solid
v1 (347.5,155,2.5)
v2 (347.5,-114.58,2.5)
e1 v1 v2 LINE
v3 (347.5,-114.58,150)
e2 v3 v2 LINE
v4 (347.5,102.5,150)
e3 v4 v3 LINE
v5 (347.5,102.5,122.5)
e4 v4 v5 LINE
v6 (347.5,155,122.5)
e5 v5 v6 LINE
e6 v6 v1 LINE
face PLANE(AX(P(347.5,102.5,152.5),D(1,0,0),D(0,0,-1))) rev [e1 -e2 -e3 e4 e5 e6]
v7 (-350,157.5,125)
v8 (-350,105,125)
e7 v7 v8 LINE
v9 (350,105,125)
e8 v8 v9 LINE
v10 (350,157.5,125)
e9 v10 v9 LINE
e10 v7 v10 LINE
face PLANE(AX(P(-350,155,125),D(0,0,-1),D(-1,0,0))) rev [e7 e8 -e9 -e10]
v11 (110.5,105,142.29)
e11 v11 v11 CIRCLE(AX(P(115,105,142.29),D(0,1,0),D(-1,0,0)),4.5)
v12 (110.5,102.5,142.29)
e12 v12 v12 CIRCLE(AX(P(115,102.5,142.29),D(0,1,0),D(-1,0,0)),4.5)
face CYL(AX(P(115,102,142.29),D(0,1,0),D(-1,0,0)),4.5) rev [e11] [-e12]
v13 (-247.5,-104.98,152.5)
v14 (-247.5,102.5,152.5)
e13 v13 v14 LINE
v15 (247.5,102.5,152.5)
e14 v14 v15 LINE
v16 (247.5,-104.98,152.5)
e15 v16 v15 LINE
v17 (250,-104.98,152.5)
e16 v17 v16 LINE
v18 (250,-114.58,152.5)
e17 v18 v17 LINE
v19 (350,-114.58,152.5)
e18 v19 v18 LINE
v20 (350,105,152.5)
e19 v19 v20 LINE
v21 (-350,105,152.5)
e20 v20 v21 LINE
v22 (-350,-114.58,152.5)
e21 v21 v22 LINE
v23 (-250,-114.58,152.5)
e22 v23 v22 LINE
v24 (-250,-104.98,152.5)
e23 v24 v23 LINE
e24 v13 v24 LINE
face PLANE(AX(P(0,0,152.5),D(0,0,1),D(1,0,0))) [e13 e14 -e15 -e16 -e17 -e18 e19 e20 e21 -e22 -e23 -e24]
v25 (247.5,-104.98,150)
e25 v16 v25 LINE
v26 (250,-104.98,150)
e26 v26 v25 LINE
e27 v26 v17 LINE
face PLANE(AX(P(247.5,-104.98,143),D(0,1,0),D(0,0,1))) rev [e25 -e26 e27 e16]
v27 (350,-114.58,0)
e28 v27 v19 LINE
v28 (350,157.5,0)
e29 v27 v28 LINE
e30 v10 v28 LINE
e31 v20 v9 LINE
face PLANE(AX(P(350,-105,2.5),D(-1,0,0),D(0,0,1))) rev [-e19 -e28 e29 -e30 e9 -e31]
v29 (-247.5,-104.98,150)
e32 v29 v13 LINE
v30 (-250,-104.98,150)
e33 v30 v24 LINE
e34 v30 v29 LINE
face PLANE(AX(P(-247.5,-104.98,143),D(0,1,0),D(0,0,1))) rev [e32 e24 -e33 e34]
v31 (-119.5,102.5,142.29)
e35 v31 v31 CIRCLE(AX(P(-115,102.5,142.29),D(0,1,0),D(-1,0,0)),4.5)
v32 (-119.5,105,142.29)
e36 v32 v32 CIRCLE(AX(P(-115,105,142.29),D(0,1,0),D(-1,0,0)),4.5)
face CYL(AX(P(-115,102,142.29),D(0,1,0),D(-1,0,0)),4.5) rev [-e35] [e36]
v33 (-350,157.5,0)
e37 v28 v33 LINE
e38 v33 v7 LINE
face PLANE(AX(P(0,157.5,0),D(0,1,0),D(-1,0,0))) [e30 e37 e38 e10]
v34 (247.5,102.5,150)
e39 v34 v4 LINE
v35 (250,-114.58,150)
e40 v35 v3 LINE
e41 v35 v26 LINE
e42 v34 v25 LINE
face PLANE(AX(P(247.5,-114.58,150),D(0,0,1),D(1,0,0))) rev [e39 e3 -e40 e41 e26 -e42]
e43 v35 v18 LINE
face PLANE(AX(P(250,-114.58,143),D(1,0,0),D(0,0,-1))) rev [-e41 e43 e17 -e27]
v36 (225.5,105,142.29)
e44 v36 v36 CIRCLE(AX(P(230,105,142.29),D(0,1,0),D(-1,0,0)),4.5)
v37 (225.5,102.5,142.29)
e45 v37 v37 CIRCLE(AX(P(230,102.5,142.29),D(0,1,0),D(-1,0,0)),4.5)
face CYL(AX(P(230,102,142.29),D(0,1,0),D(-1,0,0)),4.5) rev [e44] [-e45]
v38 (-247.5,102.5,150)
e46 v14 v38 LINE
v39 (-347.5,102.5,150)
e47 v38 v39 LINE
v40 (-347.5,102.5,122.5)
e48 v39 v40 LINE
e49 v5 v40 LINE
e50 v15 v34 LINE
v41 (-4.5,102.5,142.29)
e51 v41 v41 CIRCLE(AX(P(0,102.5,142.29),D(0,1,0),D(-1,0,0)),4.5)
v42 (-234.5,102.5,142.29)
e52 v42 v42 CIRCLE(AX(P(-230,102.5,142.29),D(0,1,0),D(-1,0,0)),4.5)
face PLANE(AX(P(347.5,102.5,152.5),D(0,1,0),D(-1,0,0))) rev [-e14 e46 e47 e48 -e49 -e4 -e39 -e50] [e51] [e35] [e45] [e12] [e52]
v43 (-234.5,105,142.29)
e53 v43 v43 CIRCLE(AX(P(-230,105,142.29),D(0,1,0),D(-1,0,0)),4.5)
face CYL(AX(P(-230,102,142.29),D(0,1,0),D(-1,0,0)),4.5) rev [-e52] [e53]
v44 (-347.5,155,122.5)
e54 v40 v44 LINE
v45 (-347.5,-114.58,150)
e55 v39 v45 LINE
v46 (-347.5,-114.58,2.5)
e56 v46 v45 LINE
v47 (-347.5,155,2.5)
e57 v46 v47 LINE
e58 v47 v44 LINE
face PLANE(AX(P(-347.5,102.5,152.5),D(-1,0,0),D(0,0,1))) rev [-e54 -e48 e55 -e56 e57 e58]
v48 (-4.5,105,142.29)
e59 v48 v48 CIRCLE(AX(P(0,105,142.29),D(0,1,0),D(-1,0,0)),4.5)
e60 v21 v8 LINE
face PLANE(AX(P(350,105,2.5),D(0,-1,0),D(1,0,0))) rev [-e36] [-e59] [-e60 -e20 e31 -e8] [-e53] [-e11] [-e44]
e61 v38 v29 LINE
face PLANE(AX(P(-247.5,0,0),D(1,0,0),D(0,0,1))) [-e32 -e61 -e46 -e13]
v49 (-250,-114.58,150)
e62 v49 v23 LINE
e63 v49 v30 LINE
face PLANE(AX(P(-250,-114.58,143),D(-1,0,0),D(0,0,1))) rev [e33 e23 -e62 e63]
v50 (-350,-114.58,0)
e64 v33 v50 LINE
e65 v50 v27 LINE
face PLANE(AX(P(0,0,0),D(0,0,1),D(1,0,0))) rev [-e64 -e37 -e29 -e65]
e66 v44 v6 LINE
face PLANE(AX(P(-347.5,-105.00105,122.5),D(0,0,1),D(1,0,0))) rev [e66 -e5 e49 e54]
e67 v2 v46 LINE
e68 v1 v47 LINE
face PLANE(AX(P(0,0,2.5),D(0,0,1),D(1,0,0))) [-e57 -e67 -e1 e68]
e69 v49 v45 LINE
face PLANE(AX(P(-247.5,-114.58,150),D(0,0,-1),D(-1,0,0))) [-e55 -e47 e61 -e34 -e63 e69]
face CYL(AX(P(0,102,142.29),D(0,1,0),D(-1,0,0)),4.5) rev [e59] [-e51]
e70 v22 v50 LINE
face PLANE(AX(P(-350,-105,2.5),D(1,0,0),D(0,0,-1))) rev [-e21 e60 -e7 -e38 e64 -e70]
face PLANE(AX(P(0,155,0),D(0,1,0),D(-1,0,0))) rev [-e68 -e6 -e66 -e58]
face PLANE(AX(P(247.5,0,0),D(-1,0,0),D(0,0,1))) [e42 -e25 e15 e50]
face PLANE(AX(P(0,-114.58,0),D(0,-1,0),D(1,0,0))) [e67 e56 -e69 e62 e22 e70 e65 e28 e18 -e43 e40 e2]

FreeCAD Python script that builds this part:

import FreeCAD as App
import Part
import Sketcher
from FreeCAD import Vector


def add_polygon(sketch, points):
    """Adds a closed chain of lines whose ends are joined by coincident constraints."""
    first, n = sketch.GeometryCount, len(points)
    for a, b in zip(points, points[1:] + points[:1]):
        sketch.addGeometry(Part.LineSegment(App.Vector(*a, 0), App.Vector(*b, 0)), False)
    for i in range(n):
        sketch.addConstraint(Sketcher.Constraint("Coincident", first + i, 2, first + (i + 1) % n, 1))

doc = App.newDocument("Part")
body = doc.addObject("PartDesign::Body", "Body")

# Sketch on XY plane
sketch1 = body.newObject("Sketcher::SketchObject", "Sketch")
sketch1.AttachmentSupport = (doc.getObject("XY_Plane"), [""])
sketch1.MapMode = "FlatFace"
add_polygon(sketch1, [(-350, 105), (-350, -105), (350, -105), (350, 105)])  # lines 0-3
sketch1.addConstraint(Sketcher.Constraint("Vertical", 0))
sketch1.addConstraint(Sketcher.Constraint("Horizontal", 1))
sketch1.addConstraint(Sketcher.Constraint("Vertical", 2))
sketch1.addConstraint(Sketcher.Constraint("Horizontal", 3))
sketch1.addConstraint(Sketcher.Constraint("Symmetric", 0, 2, 2, 2, -1, 1))
sketch1.addConstraint(Sketcher.Constraint("DistanceX", 1, 1, 1, 2, 700.0))
sketch1.addConstraint(Sketcher.Constraint("DistanceY", 0, 2, 0, 1, 210.0))
pad1 = body.newObject("PartDesign::Pad", "Pad")
pad1.Profile = sketch1
pad1.Length = 2.5

# Sketch on XY plane
sketch2 = body.newObject("Sketcher::SketchObject", "Sketch001")
sketch2.AttachmentSupport = (doc.getObject("XY_Plane"), [""])
sketch2.MapMode = "FlatFace"
sketch2.AttachmentOffset = App.Placement(Vector(0, 0, 2.5), App.Rotation())
add_polygon(sketch2, [(-347.5, -105), (-347.5, 102.5), (347.5, 102.5), (347.5, -105), (350, -105), (350, 105), (-350, 105), (-350, -105)])  # lines 0-7
sketch2.addConstraint(Sketcher.Constraint("Vertical", 0))
sketch2.addConstraint(Sketcher.Constraint("Horizontal", 1))
sketch2.addConstraint(Sketcher.Constraint("Vertical", 2))
sketch2.addConstraint(Sketcher.Constraint("Horizontal", 3))
sketch2.addConstraint(Sketcher.Constraint("Vertical", 4))
sketch2.addConstraint(Sketcher.Constraint("Horizontal", 5))
sketch2.addConstraint(Sketcher.Constraint("Vertical", 6))
sketch2.addConstraint(Sketcher.Constraint("Horizontal", 7))
sketch2.addConstraint(Sketcher.Constraint("Symmetric", 3, 2, 5, 2, -1, 1))
sketch2.addConstraint(Sketcher.Constraint("Symmetric", 2, 2, 7, 2, -2))
sketch2.addConstraint(Sketcher.Constraint("DistanceX", 1, 1, 1, 2, 695.0))
sketch2.addConstraint(Sketcher.Constraint("DistanceX", 5, 2, 5, 1, 700.0))
sketch2.addConstraint(Sketcher.Constraint("DistanceY", 4, 1, 4, 2, 210.0))
sketch2.addConstraint(Sketcher.Constraint("DistanceY", 0, 1, 0, 2, 207.5))
pad2 = body.newObject("PartDesign::Pad", "Pad001")
pad2.Profile = sketch2
pad2.Length = 150

# Sketch on XZ plane
sketch3 = body.newObject("Sketcher::SketchObject", "Sketch002")
sketch3.AttachmentSupport = (doc.getObject("XZ_Plane"), [""])
sketch3.MapMode = "FlatFace"
sketch3.AttachmentOffset = App.Placement(Vector(0, 0, -105), App.Rotation())
add_polygon(sketch3, [(-348, 2), (-348, 122), (348, 122), (348, 2)])  # lines 0-3
sketch3.addConstraint(Sketcher.Constraint("Vertical", 0))
sketch3.addConstraint(Sketcher.Constraint("Horizontal", 1))
sketch3.addConstraint(Sketcher.Constraint("Vertical", 2))
sketch3.addConstraint(Sketcher.Constraint("Horizontal", 3))
sketch3.addConstraint(Sketcher.Constraint("DistanceX", 1, 1, 1, 2, 695.0))
sketch3.addConstraint(Sketcher.Constraint("DistanceY", 0, 1, 0, 2, 120.0))
sketch3.addConstraint(Sketcher.Constraint("DistanceX", 0, 2, -1, 1, 347.5))
sketch3.addConstraint(Sketcher.Constraint("DistanceY", -1, 1, 0, 2, 122.5))
pocket1 = body.newObject("PartDesign::Pocket", "Pocket")
pocket1.Profile = sketch3
pocket1.Type = "UpToFirst"
pocket1.Reversed = True

# Sketch on XZ plane
sketch4 = body.newObject("Sketcher::SketchObject", "Sketch003")
sketch4.AttachmentSupport = (doc.getObject("XZ_Plane"), [""])
sketch4.MapMode = "FlatFace"
sketch4.AttachmentOffset = App.Placement(Vector(0, 0, 105), App.Rotation())
add_polygon(sketch4, [(350, 0), (350, 152.5), (347.5, 152.5), (347.5, 2.5), (-347.5, 2.5), (-347.5, 152.5), (-350, 152.5), (-350, 0)])  # lines 0-7
sketch4.addConstraint(Sketcher.Constraint("Vertical", 0))
sketch4.addConstraint(Sketcher.Constraint("Horizontal", 1))
sketch4.addConstraint(Sketcher.Constraint("Vertical", 2))
sketch4.addConstraint(Sketcher.Constraint("Horizontal", 3))
sketch4.addConstraint(Sketcher.Constraint("Vertical", 4))
sketch4.addConstraint(Sketcher.Constraint("Horizontal", 5))
sketch4.addConstraint(Sketcher.Constraint("Vertical", 6))
sketch4.addConstraint(Sketcher.Constraint("Horizontal", 7))
sketch4.addConstraint(Sketcher.Constraint("Symmetric", 6, 2, 7, 2, -1, 1))
sketch4.addConstraint(Sketcher.Constraint("Symmetric", 1, 2, 4, 2, -2))
sketch4.addConstraint(Sketcher.Constraint("DistanceX", 3, 2, 3, 1, 695.0))
sketch4.addConstraint(Sketcher.Constraint("DistanceX", 7, 1, 7, 2, 700.0))
sketch4.addConstraint(Sketcher.Constraint("DistanceY", 2, 2, 2, 1, 150.0))
sketch4.addConstraint(Sketcher.Constraint("DistanceY", 0, 1, 0, 2, 152.5))
pad3 = body.newObject("PartDesign::Pad", "Pad002")
pad3.Profile = sketch4
pad3.Length = 9.58

# Sketch on YZ plane
sketch5 = body.newObject("Sketcher::SketchObject", "Sketch004")
sketch5.AttachmentSupport = (doc.getObject("YZ_Plane"), [""])
sketch5.MapMode = "FlatFace"
sketch5.AttachmentOffset = App.Placement(Vector(0, 0, 347.5), App.Rotation())
add_polygon(sketch5, [(102.5, 150), (-114.6, 150), (-114.6, 152.5), (102.5, 152.5)])  # lines 0-3
sketch5.addConstraint(Sketcher.Constraint("Horizontal", 0))
sketch5.addConstraint(Sketcher.Constraint("Vertical", 1))
sketch5.addConstraint(Sketcher.Constraint("Horizontal", 2))
sketch5.addConstraint(Sketcher.Constraint("Vertical", 3))
sketch5.addConstraint(Sketcher.Constraint("DistanceY", 1, 1, 1, 2, 2.5))
sketch5.addConstraint(Sketcher.Constraint("DistanceY", -1, 1, 0, 2, 150.0))
sketch5.addConstraint(Sketcher.Constraint("DistanceX", 0, 2, 0, 1, 217.08))
sketch5.addConstraint(Sketcher.Constraint("DistanceX", -1, 1, 2, 2, 102.5))
pad4 = body.newObject("PartDesign::Pad", "Pad003")
pad4.Profile = sketch5
pad4.Length = 100
pad4.Reversed = True
doc.recompute()

mirrored = body.newObject("PartDesign::Mirrored", "Mirrored")
mirrored.Originals = [pad4]
mirrored.MirrorPlane = (doc.getObject("YZ_Plane"), [""])
body.Tip = mirrored

# Sketch on XY plane
sketch6 = body.newObject("Sketcher::SketchObject", "Sketch005")
sketch6.AttachmentSupport = (doc.getObject("XY_Plane"), [""])
sketch6.MapMode = "FlatFace"
sketch6.AttachmentOffset = App.Placement(Vector(0, 0, 152.5), App.Rotation())
add_polygon(sketch6, [(-250, -105), (-250, -114.6), (-247.5, -114.6), (-247.5, -105)])  # lines 0-3
add_polygon(sketch6, [(247.5, -105), (247.5, -114.6), (250, -114.6), (250, -105)])  # lines 4-7
sketch6.addConstraint(Sketcher.Constraint("Vertical", 0))
sketch6.addConstraint(Sketcher.Constraint("Horizontal", 1))
sketch6.addConstraint(Sketcher.Constraint("Vertical", 2))
sketch6.addConstraint(Sketcher.Constraint("Horizontal", 3))
sketch6.addConstraint(Sketcher.Constraint("Vertical", 4))
sketch6.addConstraint(Sketcher.Constraint("Horizontal", 5))
sketch6.addConstraint(Sketcher.Constraint("Vertical", 6))
sketch6.addConstraint(Sketcher.Constraint("Horizontal", 7))
sketch6.addConstraint(Sketcher.Constraint("Symmetric", 1, 2, 4, 2, -2))
sketch6.addConstraint(Sketcher.Constraint("Symmetric", 3, 2, 6, 2, -2))
sketch6.addConstraint(Sketcher.Constraint("DistanceX", 1, 1, 1, 2, 2.5))
sketch6.addConstraint(Sketcher.Constraint("DistanceY", 0, 2, 0, 1, 9.6))
sketch6.addConstraint(Sketcher.Constraint("DistanceX", 0, 2, -1, 1, 250.0))
sketch6.addConstraint(Sketcher.Constraint("DistanceY", 0, 2, -1, 1, 114.58))
pocket2 = body.newObject("PartDesign::Pocket", "Pocket001")
pocket2.Profile = sketch6
pocket2.Length = 9.5

# Sketch on XZ plane
sketch7 = body.newObject("Sketcher::SketchObject", "Sketch006")
sketch7.AttachmentSupport = (doc.getObject("XZ_Plane"), [""])
sketch7.MapMode = "FlatFace"
sketch7.AttachmentOffset = App.Placement(Vector(0, 0, -105), App.Rotation())
sketch7.addGeometry(Part.Circle(Vector(-230, 142.3, 0), Vector(0, 0, 1), 4.5), False)
sketch7.addGeometry(Part.Circle(Vector(-115, 142.3, 0), Vector(0, 0, 1), 4.5), False)
sketch7.addGeometry(Part.Circle(Vector(0, 142.3, 0), Vector(0, 0, 1), 4.5), False)
sketch7.addGeometry(Part.Circle(Vector(115, 142.3, 0), Vector(0, 0, 1), 4.5), False)
sketch7.addGeometry(Part.Circle(Vector(230, 142.3, 0), Vector(0, 0, 1), 4.5), False)
sketch7.addConstraint(Sketcher.Constraint("Equal", 0, 1))
sketch7.addConstraint(Sketcher.Constraint("Equal", 1, 2))
sketch7.addConstraint(Sketcher.Constraint("Equal", 2, 3))
sketch7.addConstraint(Sketcher.Constraint("Equal", 3, 4))
sketch7.addConstraint(Sketcher.Constraint("Symmetric", 1, 3, 3, 3, -2))
sketch7.addConstraint(Sketcher.Constraint("Symmetric", 0, 3, 4, 3, -2))
sketch7.addConstraint(Sketcher.Constraint("PointOnObject", 2, 3, -2))
sketch7.addConstraint(Sketcher.Constraint("Horizontal", 0, 3, 1, 3))
sketch7.addConstraint(Sketcher.Constraint("Horizontal", 1, 3, 2, 3))
sketch7.addConstraint(Sketcher.Constraint("Diameter", 0, 9.0))
sketch7.addConstraint(Sketcher.Constraint("DistanceX", 0, 3, -1, 1, 230.0))
sketch7.addConstraint(Sketcher.Constraint("DistanceX", 1, 3, -1, 1, 115.0))
sketch7.addConstraint(Sketcher.Constraint("DistanceY", -1, 1, 0, 3, 142.29))
pocket3 = body.newObject("PartDesign::Pocket", "Pocket002")
pocket3.Profile = sketch7
pocket3.Length = 3
pocket3.Reversed = True

# Sketch on XZ plane
sketch8 = body.newObject("Sketcher::SketchObject", "Sketch007")
sketch8.AttachmentSupport = (doc.getObject("XZ_Plane"), [""])
sketch8.MapMode = "FlatFace"
sketch8.AttachmentOffset = App.Placement(Vector(0, 0, -105), App.Rotation())
add_polygon(sketch8, [(-350, 0), (-350, 125), (350, 125), (350, 0)])  # lines 0-3
add_polygon(sketch8, [(348, 122), (-348, 122), (-348, 2), (348, 2)])  # lines 4-7
sketch8.addConstraint(Sketcher.Constraint("Vertical", 0))
sketch8.addConstraint(Sketcher.Constraint("Horizontal", 1))
sketch8.addConstraint(Sketcher.Constraint("Vertical", 2))
sketch8.addConstraint(Sketcher.Constraint("Horizontal", 3))
sketch8.addConstraint(Sketcher.Constraint("Horizontal", 4))
sketch8.addConstraint(Sketcher.Constraint("Vertical", 5))
sketch8.addConstraint(Sketcher.Constraint("Horizontal", 6))
sketch8.addConstraint(Sketcher.Constraint("Vertical", 7))
sketch8.addConstraint(Sketcher.Constraint("Symmetric", 2, 2, 3, 2, -1, 1))
sketch8.addConstraint(Sketcher.Constraint("DistanceX", 1, 1, 1, 2, 700.0))
sketch8.addConstraint(Sketcher.Constraint("DistanceX", 4, 2, 4, 1, 695.0))
sketch8.addConstraint(Sketcher.Constraint("DistanceY", 0, 1, 0, 2, 125.0))
sketch8.addConstraint(Sketcher.Constraint("DistanceY", 5, 2, 5, 1, 120.0))
sketch8.addConstraint(Sketcher.Constraint("DistanceX", 4, 2, -1, 1, 347.5))
sketch8.addConstraint(Sketcher.Constraint("DistanceY", -1, 1, 4, 2, 122.5))
pad5 = body.newObject("PartDesign::Pad", "Pad004")
pad5.Profile = sketch8
pad5.Length = 50
pad5.Reversed = True

# Sketch on XZ plane
sketch9 = body.newObject("Sketcher::SketchObject", "Sketch008")
sketch9.AttachmentSupport = (doc.getObject("XZ_Plane"), [""])
sketch9.MapMode = "FlatFace"
sketch9.AttachmentOffset = App.Placement(Vector(0, 0, -155), App.Rotation())
add_polygon(sketch9, [(-350, 0), (-350, 125), (350, 125), (350, 0)])  # lines 0-3
sketch9.addConstraint(Sketcher.Constraint("Vertical", 0))
sketch9.addConstraint(Sketcher.Constraint("Horizontal", 1))
sketch9.addConstraint(Sketcher.Constraint("Vertical", 2))
sketch9.addConstraint(Sketcher.Constraint("Horizontal", 3))
sketch9.addConstraint(Sketcher.Constraint("Symmetric", 2, 2, 3, 2, -1, 1))
sketch9.addConstraint(Sketcher.Constraint("DistanceX", 1, 1, 1, 2, 700.0))
sketch9.addConstraint(Sketcher.Constraint("DistanceY", 0, 1, 0, 2, 125.0))
pad6 = body.newObject("PartDesign::Pad", "Pad005")
pad6.Profile = sketch9
pad6.Length = 2.5
pad6.Reversed = True

doc.recompute()
